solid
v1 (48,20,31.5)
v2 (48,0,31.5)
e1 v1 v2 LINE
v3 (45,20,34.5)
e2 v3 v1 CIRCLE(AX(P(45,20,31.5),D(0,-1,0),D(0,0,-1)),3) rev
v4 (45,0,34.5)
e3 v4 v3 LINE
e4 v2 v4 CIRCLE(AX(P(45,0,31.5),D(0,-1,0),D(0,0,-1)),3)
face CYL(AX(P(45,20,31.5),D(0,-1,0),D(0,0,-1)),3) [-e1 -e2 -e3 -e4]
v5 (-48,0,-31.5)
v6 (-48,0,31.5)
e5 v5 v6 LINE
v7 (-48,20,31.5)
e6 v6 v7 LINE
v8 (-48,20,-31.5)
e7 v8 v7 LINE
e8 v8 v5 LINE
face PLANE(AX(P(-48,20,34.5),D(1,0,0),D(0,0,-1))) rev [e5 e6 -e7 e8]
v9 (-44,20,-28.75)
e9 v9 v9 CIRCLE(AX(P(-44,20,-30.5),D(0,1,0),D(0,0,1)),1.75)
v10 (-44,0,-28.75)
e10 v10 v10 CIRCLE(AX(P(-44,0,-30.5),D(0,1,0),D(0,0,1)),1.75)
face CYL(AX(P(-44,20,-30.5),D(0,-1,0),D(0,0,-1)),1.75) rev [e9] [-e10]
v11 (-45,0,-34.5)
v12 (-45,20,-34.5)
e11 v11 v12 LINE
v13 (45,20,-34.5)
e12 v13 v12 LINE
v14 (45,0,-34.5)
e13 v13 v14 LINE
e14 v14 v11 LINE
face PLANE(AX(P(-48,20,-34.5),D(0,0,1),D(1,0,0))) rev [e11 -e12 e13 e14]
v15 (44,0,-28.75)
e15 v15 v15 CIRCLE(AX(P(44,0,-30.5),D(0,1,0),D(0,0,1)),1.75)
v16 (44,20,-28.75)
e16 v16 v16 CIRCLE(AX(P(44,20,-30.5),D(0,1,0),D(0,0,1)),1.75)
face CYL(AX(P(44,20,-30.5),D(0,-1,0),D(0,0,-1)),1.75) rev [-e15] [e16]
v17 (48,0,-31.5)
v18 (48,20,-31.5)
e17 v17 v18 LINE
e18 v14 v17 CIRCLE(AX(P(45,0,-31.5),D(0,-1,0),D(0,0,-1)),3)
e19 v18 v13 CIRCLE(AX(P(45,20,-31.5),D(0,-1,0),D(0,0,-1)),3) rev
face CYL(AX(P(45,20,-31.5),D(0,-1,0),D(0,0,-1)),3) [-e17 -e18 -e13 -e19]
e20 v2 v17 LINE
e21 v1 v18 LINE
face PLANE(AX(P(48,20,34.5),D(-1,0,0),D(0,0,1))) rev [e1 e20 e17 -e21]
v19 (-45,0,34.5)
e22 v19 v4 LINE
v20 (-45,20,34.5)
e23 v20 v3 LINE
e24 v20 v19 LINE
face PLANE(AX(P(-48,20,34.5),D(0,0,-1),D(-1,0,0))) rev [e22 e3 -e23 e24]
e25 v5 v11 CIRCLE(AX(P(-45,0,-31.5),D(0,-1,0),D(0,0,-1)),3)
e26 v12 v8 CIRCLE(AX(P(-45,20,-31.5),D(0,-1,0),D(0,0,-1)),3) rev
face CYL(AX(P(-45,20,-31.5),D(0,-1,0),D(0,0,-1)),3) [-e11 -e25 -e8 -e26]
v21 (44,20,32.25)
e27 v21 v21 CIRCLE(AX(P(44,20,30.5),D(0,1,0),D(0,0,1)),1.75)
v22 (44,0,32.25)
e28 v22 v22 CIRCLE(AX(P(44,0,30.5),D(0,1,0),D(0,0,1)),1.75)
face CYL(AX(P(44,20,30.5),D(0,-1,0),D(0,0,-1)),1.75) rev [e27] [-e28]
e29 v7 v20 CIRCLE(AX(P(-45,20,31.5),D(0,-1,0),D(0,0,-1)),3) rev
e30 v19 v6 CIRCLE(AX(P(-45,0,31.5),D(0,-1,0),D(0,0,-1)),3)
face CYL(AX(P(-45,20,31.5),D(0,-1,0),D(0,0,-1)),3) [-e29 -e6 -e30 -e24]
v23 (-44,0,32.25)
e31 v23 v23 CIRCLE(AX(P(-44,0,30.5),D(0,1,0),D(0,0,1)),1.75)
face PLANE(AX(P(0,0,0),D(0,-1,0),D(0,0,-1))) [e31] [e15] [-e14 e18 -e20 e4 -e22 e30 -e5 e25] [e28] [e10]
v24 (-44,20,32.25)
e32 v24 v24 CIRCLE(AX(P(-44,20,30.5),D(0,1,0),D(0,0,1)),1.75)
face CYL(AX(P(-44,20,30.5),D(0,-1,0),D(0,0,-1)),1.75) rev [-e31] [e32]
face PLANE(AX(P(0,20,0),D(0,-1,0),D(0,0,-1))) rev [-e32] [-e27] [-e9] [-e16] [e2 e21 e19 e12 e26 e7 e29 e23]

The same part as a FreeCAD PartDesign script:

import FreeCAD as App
import Part
import Sketcher
from FreeCAD import Vector


def edges_at(feature, points):
    """Names of the edges that pass closest to the given points."""
    edges = feature.Shape.Edges
    near = lambda p: min(range(len(edges)), key=lambda i: edges[i].distToShape(Part.Vertex(*p))[0])
    return sorted({f"Edge{near(p) + 1}" for p in points})


def add_polygon(sketch, points):
    """Adds a closed chain of lines whose ends are joined by coincident constraints."""
    first, n = sketch.GeometryCount, len(points)
    for a, b in zip(points, points[1:] + points[:1]):
        sketch.addGeometry(Part.LineSegment(App.Vector(*a, 0), App.Vector(*b, 0)), False)
    for i in range(n):
        sketch.addConstraint(Sketcher.Constraint("Coincident", first + i, 2, first + (i + 1) % n, 1))

doc = App.newDocument("Part")
body = doc.addObject("PartDesign::Body", "Body")

sketch1 = doc.addObject("Sketcher::SketchObject", "Sketch")
body.addObject(sketch1)
sketch1.AttachmentSupport = (doc.XZ_Plane, [""])
sketch1.MapMode = "FlatFace"
add_polygon(sketch1, [(-48, -34.5), (-48, 34.5), (48, 34.5), (48, -34.5)])
sketch1.addGeometry(Part.Circle(Vector(-44, 30.5, 0), Vector(0, 0, 1), 1.75), False)
sketch1.addGeometry(Part.Circle(Vector(44, 30.5, 0), Vector(0, 0, 1), 1.75), False)
sketch1.addGeometry(Part.Circle(Vector(-44, -30.5, 0), Vector(0, 0, 1), 1.75), False)
sketch1.addGeometry(Part.Circle(Vector(44, -30.5, 0), Vector(0, 0, 1), 1.75), False)
sketch1.addConstraint(Sketcher.Constraint("Vertical", 0))
sketch1.addConstraint(Sketcher.Constraint("Horizontal", 1))
sketch1.addConstraint(Sketcher.Constraint("Vertical", 2))
sketch1.addConstraint(Sketcher.Constraint("Horizontal", 3))
sketch1.addConstraint(Sketcher.Constraint("Equal", 4, 5))
sketch1.addConstraint(Sketcher.Constraint("Equal", 5, 6))
sketch1.addConstraint(Sketcher.Constraint("Equal", 6, 7))
sketch1.addConstraint(Sketcher.Constraint("Symmetric", 5, 3, 6, 3, -1, 1))
sketch1.addConstraint(Sketcher.Constraint("Symmetric", 4, 3, 7, 3, -1, 1))
sketch1.addConstraint(Sketcher.Constraint("Symmetric", 0, 2, 2, 2, -1, 1))
sketch1.addConstraint(Sketcher.Constraint("Symmetric", 4, 3, 5, 3, -2))
sketch1.addConstraint(Sketcher.Constraint("Diameter", 4, 3.5))
sketch1.addConstraint(Sketcher.Constraint("DistanceX", 1, 1, 1, 2, 96.0))
sketch1.addConstraint(Sketcher.Constraint("DistanceY", 0, 1, 0, 2, 69.0))
sketch1.addConstraint(Sketcher.Constraint("DistanceX", 4, 3, -1, 1, 44.0))
sketch1.addConstraint(Sketcher.Constraint("DistanceY", 6, 3, 4, 3, 61.0))
pad1 = doc.addObject("PartDesign::Pad", "Pad")
body.addObject(pad1)
pad1.Profile = sketch1
pad1.Length = 20
pad1.Reversed = True
doc.recompute()

fillet = doc.addObject("PartDesign::Fillet", "Fillet")
body.addObject(fillet)
fillet.Base = (pad1, edges_at(pad1, [
    (48, 10, 34.5),
    (-48, 10, 34.5),
    (-48, 10, -34.5),
    (48, 10, -34.5),
]))
fillet.Radius = 3

doc.recompute()
